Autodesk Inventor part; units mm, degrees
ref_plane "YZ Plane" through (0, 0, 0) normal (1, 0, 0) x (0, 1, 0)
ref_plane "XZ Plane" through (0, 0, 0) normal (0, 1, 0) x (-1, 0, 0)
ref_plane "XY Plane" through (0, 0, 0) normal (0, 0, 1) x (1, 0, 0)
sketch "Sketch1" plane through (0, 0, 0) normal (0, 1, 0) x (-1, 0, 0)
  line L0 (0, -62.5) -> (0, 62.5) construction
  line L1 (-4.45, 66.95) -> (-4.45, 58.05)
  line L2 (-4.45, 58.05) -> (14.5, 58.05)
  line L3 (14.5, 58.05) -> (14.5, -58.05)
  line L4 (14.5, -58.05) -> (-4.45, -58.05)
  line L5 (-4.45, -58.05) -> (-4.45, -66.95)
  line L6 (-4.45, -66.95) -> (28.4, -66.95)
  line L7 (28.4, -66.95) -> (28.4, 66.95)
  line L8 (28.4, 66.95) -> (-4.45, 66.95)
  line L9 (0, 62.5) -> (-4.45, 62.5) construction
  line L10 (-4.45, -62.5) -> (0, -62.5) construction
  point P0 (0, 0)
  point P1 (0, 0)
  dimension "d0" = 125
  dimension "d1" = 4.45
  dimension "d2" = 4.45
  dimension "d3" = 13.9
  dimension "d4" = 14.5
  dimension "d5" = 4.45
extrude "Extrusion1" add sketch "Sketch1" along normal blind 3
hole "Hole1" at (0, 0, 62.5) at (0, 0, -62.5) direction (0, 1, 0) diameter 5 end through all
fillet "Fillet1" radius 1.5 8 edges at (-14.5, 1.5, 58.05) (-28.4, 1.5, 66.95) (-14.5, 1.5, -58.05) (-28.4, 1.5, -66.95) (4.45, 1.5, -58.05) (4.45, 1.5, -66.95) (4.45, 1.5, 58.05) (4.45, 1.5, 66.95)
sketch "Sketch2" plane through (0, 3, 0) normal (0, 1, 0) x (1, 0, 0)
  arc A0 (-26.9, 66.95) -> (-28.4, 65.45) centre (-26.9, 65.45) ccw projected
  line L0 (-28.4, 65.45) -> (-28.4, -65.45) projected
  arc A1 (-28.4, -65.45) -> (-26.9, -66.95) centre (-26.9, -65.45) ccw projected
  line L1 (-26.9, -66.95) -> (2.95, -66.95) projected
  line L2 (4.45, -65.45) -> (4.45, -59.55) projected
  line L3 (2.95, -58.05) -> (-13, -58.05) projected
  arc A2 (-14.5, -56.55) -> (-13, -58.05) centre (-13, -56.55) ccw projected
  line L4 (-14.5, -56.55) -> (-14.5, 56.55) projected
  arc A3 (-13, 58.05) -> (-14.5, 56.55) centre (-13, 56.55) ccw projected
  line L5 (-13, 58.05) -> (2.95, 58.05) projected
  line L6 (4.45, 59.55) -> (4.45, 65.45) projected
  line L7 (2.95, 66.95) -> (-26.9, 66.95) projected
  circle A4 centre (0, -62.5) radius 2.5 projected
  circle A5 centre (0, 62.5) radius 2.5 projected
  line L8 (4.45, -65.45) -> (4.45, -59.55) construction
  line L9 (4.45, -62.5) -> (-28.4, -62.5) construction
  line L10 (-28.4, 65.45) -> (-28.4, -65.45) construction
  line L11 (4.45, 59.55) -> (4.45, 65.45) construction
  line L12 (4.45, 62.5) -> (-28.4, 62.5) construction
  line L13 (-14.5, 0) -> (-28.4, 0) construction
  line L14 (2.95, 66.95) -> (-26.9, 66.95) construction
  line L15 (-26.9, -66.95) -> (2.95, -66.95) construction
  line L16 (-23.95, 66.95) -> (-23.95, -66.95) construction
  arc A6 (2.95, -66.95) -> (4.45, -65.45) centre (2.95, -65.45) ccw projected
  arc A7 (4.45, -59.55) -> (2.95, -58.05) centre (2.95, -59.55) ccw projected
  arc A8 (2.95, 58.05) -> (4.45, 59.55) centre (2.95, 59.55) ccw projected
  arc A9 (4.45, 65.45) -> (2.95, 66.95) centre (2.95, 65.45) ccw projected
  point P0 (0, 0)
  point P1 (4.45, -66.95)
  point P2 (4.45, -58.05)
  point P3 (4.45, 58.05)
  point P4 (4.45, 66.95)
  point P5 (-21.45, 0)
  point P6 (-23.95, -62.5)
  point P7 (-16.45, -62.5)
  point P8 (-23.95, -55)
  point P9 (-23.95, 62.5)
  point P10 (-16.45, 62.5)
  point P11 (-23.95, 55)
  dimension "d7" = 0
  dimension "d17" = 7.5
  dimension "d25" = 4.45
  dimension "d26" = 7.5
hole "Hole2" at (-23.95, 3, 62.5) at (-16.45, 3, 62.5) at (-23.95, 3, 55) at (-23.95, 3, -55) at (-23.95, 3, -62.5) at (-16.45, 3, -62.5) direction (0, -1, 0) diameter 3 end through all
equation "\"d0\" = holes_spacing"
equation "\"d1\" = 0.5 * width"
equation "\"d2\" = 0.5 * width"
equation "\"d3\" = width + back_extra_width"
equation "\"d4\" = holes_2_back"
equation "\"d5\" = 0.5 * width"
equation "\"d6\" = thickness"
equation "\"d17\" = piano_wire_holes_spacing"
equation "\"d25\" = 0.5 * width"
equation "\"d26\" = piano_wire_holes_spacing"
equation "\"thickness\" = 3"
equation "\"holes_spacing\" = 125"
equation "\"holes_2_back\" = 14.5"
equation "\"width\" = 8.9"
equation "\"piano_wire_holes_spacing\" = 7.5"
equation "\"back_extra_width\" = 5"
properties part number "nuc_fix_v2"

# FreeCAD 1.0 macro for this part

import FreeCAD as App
import Part
import Sketcher
from FreeCAD import Vector


def edges_at(feature, points):
    """Names of the edges that pass closest to the given points."""
    edges = feature.Shape.Edges
    near = lambda p: min(range(len(edges)), key=lambda i: edges[i].distToShape(Part.Vertex(*p))[0])
    return sorted({f"Edge{near(p) + 1}" for p in points})


def add_polygon(sketch, points):
    """Adds a closed chain of lines whose ends are joined by coincident constraints."""
    first, n = sketch.GeometryCount, len(points)
    for a, b in zip(points, points[1:] + points[:1]):
        sketch.addGeometry(Part.LineSegment(App.Vector(*a, 0), App.Vector(*b, 0)), False)
    for i in range(n):
        sketch.addConstraint(Sketcher.Constraint("Coincident", first + i, 2, first + (i + 1) % n, 1))

doc = App.newDocument("Part")
params = doc.addObject("Spreadsheet::Sheet", "Params")
for row, (alias, value) in enumerate([
    ("sketch1_height", "8.9 mm"),
    ("pad1_length", "3 mm"),
    ("sketch2_diameter", "5 mm"),
    ("hole_diameter", "5 mm"),
    ("fillet_radius", "1.5 mm"),
    ("sketch3_diameter", "3 mm"),
    ("hole2_diameter", "3 mm"),
], start=1):
    params.set(f"A{row}", alias)
    params.set(f"B{row}", "=" + value)
    params.setAlias(f"B{row}", alias)

body = doc.addObject("PartDesign::Body", "Body")

sketch1 = doc.addObject("Sketcher::SketchObject", "Sketch")
body.addObject(sketch1)
sketch1.AttachmentSupport = (doc.XZ_Plane, [""])
sketch1.MapMode = "FlatFace"
add_polygon(sketch1, [(-28, 67), (4, 67), (4, 58), (-14, 58), (-14, -58), (4, -58), (4, -67), (-28, -67)])
sketch1.addConstraint([
    Sketcher.Constraint("Horizontal", 0),
    Sketcher.Constraint("Vertical", 1),
    Sketcher.Constraint("Horizontal", 2),
    Sketcher.Constraint("Vertical", 3),
    Sketcher.Constraint("Horizontal", 4),
    Sketcher.Constraint("Vertical", 5),
    Sketcher.Constraint("Horizontal", 6),
    Sketcher.Constraint("Vertical", 7),
    Sketcher.Constraint("Symmetric", 1, 2, 4, 2, -1),
    Sketcher.Constraint("Equal", 1, 5),
    Sketcher.Constraint("DistanceY", 3, 2, 0, 2, 125.0),
    Sketcher.Constraint("DistanceX", 2, 2, -1, 1, 14.5),
    Sketcher.Constraint("DistanceX", 6, 2, 3, 2, 13.9),
    Sketcher.Constraint("DistanceX", -1, 1, 0, 2, 4.45),
    Sketcher.Constraint("DistanceY", 1, 2, 1, 1, 8.9),
])
sketch1.setExpression("Constraints[22]", "Params.sketch1_height")
pad1 = doc.addObject("PartDesign::Pad", "Pad")
body.addObject(pad1)
pad1.Profile = sketch1
pad1.setExpression("Length", "Params.pad1_length")
pad1.Reversed = True

sketch2 = doc.addObject("Sketcher::SketchObject", "Sketch001")
body.addObject(sketch2)
sketch2.AttachmentSupport = (doc.XZ_Plane, [""])
sketch2.MapMode = "FlatFace"
sketch2.addGeometry([
    Part.Circle(Vector(0, 62.5, 0), Vector(0, 0, 1), 2.5),
    Part.Circle(Vector(0, -62.5, 0), Vector(0, 0, 1), 2.5),
], False)
sketch2.addConstraint([
    Sketcher.Constraint("Equal", 0, 1),
    Sketcher.Constraint("Symmetric", 0, 3, 1, 3, -1, 1),
    Sketcher.Constraint("PointOnObject", 0, 3, -2),
    Sketcher.Constraint("Diameter", 0, 5.0),
    Sketcher.Constraint("DistanceY", 1, 3, 0, 3, 125.0),
])
sketch2.setExpression("Constraints[3]", "Params.sketch2_diameter")
doc.recompute()
hole = doc.addObject("PartDesign::Hole", "Hole")
body.addObject(hole)
hole.Profile = sketch2
hole.ThreadType = "None"
hole.setExpression("Diameter", "Params.hole_diameter")
hole.DepthType = "ThroughAll"
doc.recompute()

fillet = doc.addObject("PartDesign::Fillet", "Fillet")
body.addObject(fillet)
fillet.Base = (hole, edges_at(hole, [
    (-14.5, 1.5, 58.05),
    (-28.4, 1.5, 66.95),
    (-14.5, 1.5, -58.05),
    (-28.4, 1.5, -66.95),
    (4.45, 1.5, -58.05),
    (4.45, 1.5, -66.95),
    (4.45, 1.5, 58.05),
    (4.45, 1.5, 66.95),
]))
fillet.setExpression("Radius", "Params.fillet_radius")

sketch3 = doc.addObject("Sketcher::SketchObject", "Sketch002")
body.addObject(sketch3)
sketch3.AttachmentSupport = (doc.XZ_Plane, [""])
sketch3.MapMode = "FlatFace"
sketch3.AttachmentOffset = App.Placement(Vector(0, 0, -3), App.Rotation())
sketch3.addGeometry([
    Part.Circle(Vector(-23.9, 62.5, 0), Vector(0, 0, 1), 1.5),
    Part.Circle(Vector(-16.4, 62.5, 0), Vector(0, 0, 1), 1.5),
    Part.Circle(Vector(-23.9, 55, 0), Vector(0, 0, 1), 1.5),
    Part.Circle(Vector(-23.9, -55, 0), Vector(0, 0, 1), 1.5),
    Part.Circle(Vector(-23.9, -62.5, 0), Vector(0, 0, 1), 1.5),
    Part.Circle(Vector(-16.4, -62.5, 0), Vector(0, 0, 1), 1.5),
], False)
sketch3.addConstraint([
    Sketcher.Constraint("Equal", 0, 1),
    Sketcher.Constraint("Equal", 1, 2),
    Sketcher.Constraint("Equal", 2, 3),
    Sketcher.Constraint("Equal", 3, 4),
    Sketcher.Constraint("Equal", 4, 5),
    Sketcher.Constraint("Symmetric", 2, 3, 3, 3, -1),
    Sketcher.Constraint("Symmetric", 0, 3, 4, 3, -1),
    Sketcher.Constraint("Symmetric", 1, 3, 5, 3, -1),
    Sketcher.Constraint("Horizontal", 0, 3, 1, 3),
    Sketcher.Constraint("Vertical", 0, 3, 2, 3),
    Sketcher.Constraint("Diameter", 0, 3.0),
    Sketcher.Constraint("DistanceY", -1, 1, 2, 3, 55.0),
    Sketcher.Constraint("DistanceY", 4, 3, 0, 3, 125.0),
    Sketcher.Constraint("DistanceX", 0, 3, 1, 3, 7.5),
    Sketcher.Constraint("DistanceX", 0, 3, -1, 1, 23.95),
])
sketch3.setExpression("Constraints[10]", "Params.sketch3_diameter")
doc.recompute()
hole2 = doc.addObject("PartDesign::Hole", "Hole001")
body.addObject(hole2)
hole2.Profile = sketch3
hole2.ThreadType = "None"
hole2.setExpression("Diameter", "Params.hole2_diameter")
hole2.DepthType = "ThroughAll"
hole2.Reversed = True

doc.recompute()
